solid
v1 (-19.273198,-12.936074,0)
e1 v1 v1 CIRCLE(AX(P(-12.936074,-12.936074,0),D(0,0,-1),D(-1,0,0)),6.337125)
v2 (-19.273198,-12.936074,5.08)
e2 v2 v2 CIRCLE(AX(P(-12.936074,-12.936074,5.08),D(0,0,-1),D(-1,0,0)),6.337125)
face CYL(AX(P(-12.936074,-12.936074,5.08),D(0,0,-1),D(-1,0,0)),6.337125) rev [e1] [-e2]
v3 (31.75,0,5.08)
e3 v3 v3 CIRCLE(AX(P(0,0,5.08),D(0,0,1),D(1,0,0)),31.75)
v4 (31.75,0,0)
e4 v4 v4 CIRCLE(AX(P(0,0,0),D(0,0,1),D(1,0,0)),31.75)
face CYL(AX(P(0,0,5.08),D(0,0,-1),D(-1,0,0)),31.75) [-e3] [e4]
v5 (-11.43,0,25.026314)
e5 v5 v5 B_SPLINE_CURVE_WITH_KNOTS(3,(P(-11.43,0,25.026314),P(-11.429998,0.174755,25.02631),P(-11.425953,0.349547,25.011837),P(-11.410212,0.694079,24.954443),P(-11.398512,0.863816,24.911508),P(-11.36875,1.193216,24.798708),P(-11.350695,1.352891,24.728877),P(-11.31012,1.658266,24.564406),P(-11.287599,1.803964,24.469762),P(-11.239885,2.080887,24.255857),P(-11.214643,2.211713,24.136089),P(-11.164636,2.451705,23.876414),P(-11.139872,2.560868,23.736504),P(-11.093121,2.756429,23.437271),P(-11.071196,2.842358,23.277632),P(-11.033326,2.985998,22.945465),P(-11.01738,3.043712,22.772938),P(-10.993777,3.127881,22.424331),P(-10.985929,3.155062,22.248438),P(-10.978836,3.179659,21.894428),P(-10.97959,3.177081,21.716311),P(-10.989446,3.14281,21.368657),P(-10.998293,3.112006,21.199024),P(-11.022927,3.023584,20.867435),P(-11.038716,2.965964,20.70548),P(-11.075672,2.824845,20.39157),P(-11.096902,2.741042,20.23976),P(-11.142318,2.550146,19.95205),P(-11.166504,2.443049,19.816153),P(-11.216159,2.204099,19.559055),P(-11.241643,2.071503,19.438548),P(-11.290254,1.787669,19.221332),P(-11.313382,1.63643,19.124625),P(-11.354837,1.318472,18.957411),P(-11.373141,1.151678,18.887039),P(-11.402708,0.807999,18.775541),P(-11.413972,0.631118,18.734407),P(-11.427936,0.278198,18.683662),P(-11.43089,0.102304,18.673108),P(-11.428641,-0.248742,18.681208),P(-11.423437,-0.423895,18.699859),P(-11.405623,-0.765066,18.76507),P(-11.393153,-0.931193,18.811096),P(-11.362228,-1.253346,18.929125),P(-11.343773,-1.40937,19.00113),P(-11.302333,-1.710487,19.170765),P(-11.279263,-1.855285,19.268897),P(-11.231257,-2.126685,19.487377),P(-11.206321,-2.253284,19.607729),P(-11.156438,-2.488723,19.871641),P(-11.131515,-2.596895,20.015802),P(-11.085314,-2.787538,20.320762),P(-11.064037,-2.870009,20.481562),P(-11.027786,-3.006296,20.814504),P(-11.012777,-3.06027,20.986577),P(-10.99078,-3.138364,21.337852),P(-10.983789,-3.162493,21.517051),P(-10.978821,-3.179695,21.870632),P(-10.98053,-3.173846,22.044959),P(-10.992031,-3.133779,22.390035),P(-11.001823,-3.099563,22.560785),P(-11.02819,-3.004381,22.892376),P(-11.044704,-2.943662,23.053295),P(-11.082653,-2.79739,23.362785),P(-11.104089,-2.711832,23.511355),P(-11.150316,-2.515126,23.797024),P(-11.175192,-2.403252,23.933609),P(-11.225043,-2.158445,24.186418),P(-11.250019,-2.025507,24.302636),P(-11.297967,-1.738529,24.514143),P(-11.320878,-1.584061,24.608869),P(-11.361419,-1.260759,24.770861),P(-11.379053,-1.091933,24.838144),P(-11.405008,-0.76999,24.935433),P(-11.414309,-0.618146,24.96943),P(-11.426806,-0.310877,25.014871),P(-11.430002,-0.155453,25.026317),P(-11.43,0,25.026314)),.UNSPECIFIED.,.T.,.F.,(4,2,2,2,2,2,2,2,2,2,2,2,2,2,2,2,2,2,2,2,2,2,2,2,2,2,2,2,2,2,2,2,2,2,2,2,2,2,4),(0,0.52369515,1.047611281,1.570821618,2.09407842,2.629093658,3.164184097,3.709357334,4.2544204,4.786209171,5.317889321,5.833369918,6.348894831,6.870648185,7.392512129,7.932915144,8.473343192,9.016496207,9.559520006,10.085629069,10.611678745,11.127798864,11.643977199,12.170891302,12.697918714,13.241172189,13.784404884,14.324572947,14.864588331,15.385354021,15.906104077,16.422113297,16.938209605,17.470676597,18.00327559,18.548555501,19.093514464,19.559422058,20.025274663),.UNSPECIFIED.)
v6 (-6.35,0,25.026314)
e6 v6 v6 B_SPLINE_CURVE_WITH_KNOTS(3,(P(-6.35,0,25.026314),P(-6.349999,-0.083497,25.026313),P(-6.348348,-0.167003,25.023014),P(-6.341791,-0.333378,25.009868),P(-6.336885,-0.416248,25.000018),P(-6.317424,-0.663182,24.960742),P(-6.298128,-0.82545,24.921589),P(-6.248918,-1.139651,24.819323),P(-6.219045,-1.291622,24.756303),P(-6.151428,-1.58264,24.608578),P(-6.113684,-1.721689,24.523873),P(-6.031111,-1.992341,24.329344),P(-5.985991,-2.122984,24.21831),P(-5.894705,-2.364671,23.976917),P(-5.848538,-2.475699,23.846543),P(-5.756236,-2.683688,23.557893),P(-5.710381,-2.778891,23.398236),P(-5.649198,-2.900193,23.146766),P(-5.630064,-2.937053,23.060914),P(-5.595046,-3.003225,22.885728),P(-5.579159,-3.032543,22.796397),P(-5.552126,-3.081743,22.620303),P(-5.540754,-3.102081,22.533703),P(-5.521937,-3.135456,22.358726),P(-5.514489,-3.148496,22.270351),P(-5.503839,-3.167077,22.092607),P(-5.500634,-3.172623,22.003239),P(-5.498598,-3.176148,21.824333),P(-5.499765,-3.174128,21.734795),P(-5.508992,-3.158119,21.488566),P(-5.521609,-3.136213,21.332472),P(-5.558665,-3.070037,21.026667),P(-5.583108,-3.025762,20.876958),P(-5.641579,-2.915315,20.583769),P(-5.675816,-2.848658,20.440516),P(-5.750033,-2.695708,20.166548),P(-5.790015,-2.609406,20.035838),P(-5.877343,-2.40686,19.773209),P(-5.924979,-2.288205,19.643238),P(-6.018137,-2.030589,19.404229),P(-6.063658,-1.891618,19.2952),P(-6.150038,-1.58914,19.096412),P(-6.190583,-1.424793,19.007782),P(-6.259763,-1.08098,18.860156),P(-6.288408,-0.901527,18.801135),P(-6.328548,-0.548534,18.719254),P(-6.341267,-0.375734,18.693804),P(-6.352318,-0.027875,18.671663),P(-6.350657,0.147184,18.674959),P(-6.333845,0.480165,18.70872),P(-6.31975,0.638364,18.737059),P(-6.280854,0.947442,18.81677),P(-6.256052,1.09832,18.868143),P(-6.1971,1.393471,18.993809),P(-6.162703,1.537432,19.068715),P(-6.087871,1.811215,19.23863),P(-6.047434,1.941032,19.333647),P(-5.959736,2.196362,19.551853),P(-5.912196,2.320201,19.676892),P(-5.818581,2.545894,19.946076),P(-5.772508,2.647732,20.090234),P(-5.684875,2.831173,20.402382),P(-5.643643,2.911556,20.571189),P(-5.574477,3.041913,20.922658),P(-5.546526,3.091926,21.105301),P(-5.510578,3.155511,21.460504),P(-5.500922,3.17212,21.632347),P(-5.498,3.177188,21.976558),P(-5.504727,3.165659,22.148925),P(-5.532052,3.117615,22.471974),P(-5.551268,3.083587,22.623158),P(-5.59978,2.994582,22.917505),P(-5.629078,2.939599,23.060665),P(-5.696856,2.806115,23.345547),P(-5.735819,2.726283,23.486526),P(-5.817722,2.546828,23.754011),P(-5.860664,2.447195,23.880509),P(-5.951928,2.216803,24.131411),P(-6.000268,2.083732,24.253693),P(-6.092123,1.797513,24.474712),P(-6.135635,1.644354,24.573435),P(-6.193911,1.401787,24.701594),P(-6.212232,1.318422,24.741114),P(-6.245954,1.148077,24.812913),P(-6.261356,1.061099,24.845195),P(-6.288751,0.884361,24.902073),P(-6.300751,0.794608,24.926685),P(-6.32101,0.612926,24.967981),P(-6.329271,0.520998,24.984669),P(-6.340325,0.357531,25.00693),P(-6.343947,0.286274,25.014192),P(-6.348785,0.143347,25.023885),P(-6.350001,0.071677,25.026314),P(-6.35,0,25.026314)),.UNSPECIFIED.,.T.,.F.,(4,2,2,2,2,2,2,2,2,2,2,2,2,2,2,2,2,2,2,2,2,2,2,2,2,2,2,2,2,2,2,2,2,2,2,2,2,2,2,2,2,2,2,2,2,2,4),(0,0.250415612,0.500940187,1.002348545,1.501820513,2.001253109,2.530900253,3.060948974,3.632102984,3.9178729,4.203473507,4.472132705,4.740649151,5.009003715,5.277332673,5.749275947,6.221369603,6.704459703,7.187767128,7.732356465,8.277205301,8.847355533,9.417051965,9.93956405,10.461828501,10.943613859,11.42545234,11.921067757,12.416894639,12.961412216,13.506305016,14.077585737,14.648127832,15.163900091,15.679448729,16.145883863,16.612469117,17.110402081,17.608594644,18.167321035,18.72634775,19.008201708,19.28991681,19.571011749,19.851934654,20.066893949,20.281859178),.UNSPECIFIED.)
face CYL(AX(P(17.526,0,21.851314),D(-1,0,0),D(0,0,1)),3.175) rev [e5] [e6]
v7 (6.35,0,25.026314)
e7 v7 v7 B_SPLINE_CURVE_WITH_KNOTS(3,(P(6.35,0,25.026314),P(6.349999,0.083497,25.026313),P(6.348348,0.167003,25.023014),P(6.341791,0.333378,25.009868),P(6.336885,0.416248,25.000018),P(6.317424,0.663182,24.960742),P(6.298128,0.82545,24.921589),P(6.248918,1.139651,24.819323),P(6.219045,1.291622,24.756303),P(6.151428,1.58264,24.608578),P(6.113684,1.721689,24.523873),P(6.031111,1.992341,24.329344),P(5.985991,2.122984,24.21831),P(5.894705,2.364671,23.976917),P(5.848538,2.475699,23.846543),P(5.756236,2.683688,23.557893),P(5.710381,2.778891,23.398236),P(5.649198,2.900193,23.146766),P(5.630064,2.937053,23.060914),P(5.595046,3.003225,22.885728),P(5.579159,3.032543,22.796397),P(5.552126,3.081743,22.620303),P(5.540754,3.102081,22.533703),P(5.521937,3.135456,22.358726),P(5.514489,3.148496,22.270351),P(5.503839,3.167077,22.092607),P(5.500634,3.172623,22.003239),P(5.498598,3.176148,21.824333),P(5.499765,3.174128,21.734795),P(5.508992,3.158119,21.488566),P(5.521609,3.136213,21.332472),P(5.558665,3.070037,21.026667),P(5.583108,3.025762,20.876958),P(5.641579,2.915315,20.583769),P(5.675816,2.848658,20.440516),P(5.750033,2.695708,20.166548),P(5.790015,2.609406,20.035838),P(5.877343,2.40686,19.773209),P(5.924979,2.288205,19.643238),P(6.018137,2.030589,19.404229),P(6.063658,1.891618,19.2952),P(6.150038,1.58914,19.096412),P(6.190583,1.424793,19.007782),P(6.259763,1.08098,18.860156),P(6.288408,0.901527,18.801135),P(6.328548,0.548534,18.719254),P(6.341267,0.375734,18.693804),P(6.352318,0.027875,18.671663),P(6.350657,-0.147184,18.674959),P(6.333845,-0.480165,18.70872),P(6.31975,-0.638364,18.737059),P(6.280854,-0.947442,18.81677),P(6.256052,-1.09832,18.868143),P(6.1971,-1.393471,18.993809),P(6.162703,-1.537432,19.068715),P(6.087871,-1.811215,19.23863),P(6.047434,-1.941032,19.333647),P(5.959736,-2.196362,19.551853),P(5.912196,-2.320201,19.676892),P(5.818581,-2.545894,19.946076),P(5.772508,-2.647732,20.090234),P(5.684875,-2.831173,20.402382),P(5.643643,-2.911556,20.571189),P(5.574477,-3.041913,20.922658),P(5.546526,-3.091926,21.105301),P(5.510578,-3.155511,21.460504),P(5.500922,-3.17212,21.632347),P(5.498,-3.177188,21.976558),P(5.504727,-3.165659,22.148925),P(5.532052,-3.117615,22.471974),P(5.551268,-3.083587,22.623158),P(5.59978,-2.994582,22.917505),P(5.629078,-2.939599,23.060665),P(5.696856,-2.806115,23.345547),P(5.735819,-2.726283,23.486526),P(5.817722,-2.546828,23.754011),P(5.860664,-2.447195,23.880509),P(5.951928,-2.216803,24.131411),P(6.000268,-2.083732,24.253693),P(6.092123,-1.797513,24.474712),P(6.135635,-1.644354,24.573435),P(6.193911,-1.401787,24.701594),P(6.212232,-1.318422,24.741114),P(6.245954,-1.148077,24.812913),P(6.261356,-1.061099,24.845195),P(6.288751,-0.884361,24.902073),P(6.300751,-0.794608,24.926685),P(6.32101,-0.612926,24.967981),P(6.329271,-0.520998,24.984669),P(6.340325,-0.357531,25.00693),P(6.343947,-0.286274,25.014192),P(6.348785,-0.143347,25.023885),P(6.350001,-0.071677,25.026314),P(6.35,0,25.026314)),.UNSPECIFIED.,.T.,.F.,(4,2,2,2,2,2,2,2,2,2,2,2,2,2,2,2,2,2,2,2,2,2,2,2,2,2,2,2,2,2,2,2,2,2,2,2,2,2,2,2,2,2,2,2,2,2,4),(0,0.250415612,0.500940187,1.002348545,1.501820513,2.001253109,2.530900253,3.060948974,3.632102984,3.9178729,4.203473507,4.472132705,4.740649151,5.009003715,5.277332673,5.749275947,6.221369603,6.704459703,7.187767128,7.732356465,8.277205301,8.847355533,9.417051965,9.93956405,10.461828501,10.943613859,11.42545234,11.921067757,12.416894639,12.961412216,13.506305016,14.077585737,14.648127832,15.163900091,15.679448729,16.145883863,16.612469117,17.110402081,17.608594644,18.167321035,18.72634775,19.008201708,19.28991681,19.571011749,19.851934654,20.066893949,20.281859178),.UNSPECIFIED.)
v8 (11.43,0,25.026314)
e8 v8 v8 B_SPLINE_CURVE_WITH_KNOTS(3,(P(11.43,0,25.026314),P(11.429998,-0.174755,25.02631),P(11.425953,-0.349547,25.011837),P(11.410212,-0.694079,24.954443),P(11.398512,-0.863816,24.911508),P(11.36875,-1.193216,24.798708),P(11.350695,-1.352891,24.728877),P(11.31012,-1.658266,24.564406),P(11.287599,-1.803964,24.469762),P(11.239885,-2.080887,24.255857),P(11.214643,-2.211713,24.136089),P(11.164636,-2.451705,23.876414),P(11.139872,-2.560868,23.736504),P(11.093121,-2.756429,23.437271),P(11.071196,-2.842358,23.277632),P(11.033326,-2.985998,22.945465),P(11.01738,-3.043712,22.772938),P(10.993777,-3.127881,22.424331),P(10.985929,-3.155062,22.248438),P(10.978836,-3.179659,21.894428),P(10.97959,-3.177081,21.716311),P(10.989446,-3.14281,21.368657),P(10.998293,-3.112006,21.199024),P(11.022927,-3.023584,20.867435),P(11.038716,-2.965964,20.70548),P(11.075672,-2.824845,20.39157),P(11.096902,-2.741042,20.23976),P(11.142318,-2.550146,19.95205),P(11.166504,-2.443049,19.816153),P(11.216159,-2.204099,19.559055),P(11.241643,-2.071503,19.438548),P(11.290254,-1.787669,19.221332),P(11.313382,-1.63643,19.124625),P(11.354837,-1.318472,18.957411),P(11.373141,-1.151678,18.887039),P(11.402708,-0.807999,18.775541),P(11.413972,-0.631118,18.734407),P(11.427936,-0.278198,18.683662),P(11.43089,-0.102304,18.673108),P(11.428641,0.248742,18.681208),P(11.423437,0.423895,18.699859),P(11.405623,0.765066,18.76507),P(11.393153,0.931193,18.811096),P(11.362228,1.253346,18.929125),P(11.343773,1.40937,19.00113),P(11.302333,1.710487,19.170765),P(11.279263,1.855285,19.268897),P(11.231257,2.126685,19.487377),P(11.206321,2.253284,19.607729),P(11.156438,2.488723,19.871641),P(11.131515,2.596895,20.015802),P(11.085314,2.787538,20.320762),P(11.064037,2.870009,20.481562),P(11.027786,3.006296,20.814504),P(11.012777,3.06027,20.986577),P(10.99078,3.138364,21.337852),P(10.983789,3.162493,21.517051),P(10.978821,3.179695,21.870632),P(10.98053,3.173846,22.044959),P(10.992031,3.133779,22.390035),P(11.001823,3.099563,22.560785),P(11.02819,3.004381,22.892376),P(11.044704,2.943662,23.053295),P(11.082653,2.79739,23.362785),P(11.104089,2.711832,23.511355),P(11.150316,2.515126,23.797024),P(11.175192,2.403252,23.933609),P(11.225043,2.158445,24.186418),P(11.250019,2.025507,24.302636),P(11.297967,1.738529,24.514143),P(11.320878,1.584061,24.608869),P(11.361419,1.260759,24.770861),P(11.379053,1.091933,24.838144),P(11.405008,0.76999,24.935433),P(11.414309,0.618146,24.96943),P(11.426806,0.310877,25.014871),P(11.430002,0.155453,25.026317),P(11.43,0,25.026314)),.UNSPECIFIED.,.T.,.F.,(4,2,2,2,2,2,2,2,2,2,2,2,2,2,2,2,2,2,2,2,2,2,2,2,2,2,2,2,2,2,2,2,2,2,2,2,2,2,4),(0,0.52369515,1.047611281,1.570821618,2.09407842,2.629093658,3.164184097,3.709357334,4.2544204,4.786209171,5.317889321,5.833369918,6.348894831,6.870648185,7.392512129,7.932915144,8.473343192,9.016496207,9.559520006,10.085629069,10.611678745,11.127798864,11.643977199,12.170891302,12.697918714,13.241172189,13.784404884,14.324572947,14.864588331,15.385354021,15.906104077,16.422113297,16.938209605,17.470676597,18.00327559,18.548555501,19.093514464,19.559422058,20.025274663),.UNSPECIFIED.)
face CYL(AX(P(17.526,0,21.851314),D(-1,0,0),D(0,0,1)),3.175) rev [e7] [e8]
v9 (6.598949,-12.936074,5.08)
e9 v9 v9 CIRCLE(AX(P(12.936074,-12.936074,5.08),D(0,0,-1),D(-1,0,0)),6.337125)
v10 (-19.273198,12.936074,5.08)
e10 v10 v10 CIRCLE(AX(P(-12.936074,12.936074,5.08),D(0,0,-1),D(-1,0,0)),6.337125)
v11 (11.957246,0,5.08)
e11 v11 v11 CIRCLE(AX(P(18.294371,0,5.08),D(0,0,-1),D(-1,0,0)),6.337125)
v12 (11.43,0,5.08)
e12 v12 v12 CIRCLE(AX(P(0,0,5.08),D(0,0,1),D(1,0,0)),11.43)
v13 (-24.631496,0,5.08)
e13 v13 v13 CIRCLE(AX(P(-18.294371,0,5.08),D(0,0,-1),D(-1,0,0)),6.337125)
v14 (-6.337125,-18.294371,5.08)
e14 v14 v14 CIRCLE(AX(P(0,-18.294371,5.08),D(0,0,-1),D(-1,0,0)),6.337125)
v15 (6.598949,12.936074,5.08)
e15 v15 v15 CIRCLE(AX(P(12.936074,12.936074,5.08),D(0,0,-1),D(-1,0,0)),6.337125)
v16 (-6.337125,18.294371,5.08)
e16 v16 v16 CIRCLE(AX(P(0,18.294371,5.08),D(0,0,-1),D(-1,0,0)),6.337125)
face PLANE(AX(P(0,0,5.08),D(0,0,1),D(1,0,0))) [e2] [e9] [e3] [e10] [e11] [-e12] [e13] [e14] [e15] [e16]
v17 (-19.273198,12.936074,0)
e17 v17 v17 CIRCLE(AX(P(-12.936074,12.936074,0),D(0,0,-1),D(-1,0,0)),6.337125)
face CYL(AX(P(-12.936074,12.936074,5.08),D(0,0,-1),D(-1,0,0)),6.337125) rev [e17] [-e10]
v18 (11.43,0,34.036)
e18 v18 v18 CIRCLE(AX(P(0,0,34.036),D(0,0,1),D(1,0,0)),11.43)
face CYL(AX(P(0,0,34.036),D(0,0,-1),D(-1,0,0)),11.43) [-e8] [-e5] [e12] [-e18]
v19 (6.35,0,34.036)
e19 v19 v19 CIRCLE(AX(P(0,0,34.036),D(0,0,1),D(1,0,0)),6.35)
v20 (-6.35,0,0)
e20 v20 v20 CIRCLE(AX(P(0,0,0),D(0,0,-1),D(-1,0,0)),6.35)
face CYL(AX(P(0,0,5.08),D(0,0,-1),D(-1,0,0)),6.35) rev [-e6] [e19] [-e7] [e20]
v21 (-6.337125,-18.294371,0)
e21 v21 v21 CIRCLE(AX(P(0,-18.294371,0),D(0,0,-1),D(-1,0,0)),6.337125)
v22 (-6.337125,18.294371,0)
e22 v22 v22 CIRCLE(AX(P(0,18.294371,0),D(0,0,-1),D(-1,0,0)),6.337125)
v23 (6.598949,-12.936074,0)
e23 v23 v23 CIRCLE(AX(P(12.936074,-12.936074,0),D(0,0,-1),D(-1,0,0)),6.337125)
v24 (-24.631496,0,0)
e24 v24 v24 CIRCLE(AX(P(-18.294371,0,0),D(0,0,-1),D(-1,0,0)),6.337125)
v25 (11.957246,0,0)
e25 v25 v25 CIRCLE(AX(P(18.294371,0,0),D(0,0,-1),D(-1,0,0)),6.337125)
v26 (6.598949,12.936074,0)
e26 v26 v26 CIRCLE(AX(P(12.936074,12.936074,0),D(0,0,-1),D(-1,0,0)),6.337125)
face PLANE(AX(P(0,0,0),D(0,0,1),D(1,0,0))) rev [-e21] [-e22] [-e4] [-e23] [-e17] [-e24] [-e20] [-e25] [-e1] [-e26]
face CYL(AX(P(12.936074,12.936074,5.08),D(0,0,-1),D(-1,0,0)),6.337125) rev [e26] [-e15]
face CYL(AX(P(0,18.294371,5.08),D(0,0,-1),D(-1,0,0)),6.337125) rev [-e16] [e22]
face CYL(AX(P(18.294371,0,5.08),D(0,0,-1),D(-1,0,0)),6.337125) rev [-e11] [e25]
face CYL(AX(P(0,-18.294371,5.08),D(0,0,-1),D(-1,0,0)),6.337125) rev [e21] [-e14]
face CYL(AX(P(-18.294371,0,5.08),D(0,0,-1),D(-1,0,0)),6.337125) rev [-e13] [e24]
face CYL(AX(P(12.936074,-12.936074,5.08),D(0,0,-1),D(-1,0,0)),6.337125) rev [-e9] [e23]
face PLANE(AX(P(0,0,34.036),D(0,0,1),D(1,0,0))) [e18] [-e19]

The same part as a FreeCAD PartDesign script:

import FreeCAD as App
import Part
import Sketcher
Q = App.Units.Quantity

doc = App.newDocument("Part")
body = doc.addObject("PartDesign::Body", "Body")

sketch1 = doc.addObject("Sketcher::SketchObject", "Sketch")
body.addObject(sketch1)
sketch1.AttachmentSupport = (doc.XY_Plane, [""])
sketch1.MapMode = "FlatFace"
sketch1.addGeometry(Part.Circle(App.Vector(0, 0, 0), App.Vector(0, 0, 1), 32), False)
sketch1.addConstraint(Sketcher.Constraint("Coincident", 0, 3, -1, 1))
sketch1.addConstraint(Sketcher.Constraint("Diameter", 0, Q("2.5 in")))
pad1 = doc.addObject("PartDesign::Pad", "Pad")
body.addObject(pad1)
pad1.Profile = sketch1
pad1.Length = Q("0.2 in")

sketch2 = doc.addObject("Sketcher::SketchObject", "Sketch001")
body.addObject(sketch2)
sketch2.AttachmentSupport = (doc.XY_Plane, [""])
sketch2.MapMode = "FlatFace"
sketch2.addGeometry(Part.Circle(App.Vector(0, 0, 0), App.Vector(0, 0, 1), 6), False)
sketch2.addConstraint(Sketcher.Constraint("Coincident", 0, 3, -1, 1))
sketch2.addConstraint(Sketcher.Constraint("Diameter", 0, Q("0.5 in")))
pocket1 = doc.addObject("PartDesign::Pocket", "Pocket")
body.addObject(pocket1)
pocket1.Profile = sketch2
pocket1.Length = Q("0.2 in")
pocket1.Reversed = True

sketch3 = doc.addObject("Sketcher::SketchObject", "Sketch002")
body.addObject(sketch3)
sketch3.AttachmentSupport = (doc.XY_Plane, [""])
sketch3.MapMode = "FlatFace"
sketch3.AttachmentOffset = App.Placement(App.Vector(0, 0, 0.2 * 25.4), App.Rotation())
sketch3.addGeometry(Part.Circle(App.Vector(0, 0, 0), App.Vector(0, 0, 1), 11), False)
sketch3.addConstraint(Sketcher.Constraint("Coincident", 0, 3, -1, 1))
sketch3.addConstraint(Sketcher.Constraint("Diameter", 0, Q("0.9 in")))
pad2 = doc.addObject("PartDesign::Pad", "Pad001")
body.addObject(pad2)
pad2.Profile = sketch3
pad2.Length = Q("1.14 in")

sketch4 = doc.addObject("Sketcher::SketchObject", "Sketch003")
body.addObject(sketch4)
sketch4.AttachmentSupport = (doc.XY_Plane, [""])
sketch4.MapMode = "FlatFace"
sketch4.AttachmentOffset = App.Placement(App.Vector(0, 0, 0.19 * 25.4), App.Rotation())
sketch4.addGeometry(Part.Circle(App.Vector(0, 0, 0), App.Vector(0, 0, 1), 6), False)
sketch4.addConstraint(Sketcher.Constraint("Coincident", 0, 3, -1, 1))
sketch4.addConstraint(Sketcher.Constraint("Diameter", 0, Q("0.5 in")))
pocket2 = doc.addObject("PartDesign::Pocket", "Pocket001")
body.addObject(pocket2)
pocket2.Profile = sketch4
pocket2.Length = Q("1.15 in")
pocket2.Reversed = True

sketch5 = doc.addObject("Sketcher::SketchObject", "Sketch004")
body.addObject(sketch5)
sketch5.AttachmentSupport = (doc.XY_Plane, [""])
sketch5.MapMode = "FlatFace"
sketch5.addGeometry(Part.Circle(App.Vector(0, 18, 0), App.Vector(0, 0, 1), 6), False)
sketch5.addGeometry(Part.Circle(App.Vector(-13, 13, 0), App.Vector(0, 0, 1), 6), False)
sketch5.addGeometry(Part.Circle(App.Vector(-18, 0, 0), App.Vector(0, 0, 1), 6), False)
sketch5.addGeometry(Part.Circle(App.Vector(-13, -13, 0), App.Vector(0, 0, 1), 6), False)
sketch5.addGeometry(Part.Circle(App.Vector(0, -18, 0), App.Vector(0, 0, 1), 6), False)
sketch5.addGeometry(Part.Circle(App.Vector(13, -13, 0), App.Vector(0, 0, 1), 6), False)
sketch5.addGeometry(Part.Circle(App.Vector(18, 0, 0), App.Vector(0, 0, 1), 6), False)
sketch5.addGeometry(Part.Circle(App.Vector(13, 13, 0), App.Vector(0, 0, 1), 6), False)
sketch5.addConstraint(Sketcher.Constraint("Equal", 0, 1))
sketch5.addConstraint(Sketcher.Constraint("Equal", 1, 2))
sketch5.addConstraint(Sketcher.Constraint("Equal", 2, 3))
sketch5.addConstraint(Sketcher.Constraint("Equal", 3, 4))
sketch5.addConstraint(Sketcher.Constraint("Equal", 4, 5))
sketch5.addConstraint(Sketcher.Constraint("Equal", 5, 6))
sketch5.addConstraint(Sketcher.Constraint("Equal", 6, 7))
sketch5.addConstraint(Sketcher.Constraint("Symmetric", 0, 3, 4, 3, -1, 1))
sketch5.addConstraint(Sketcher.Constraint("Symmetric", 1, 3, 5, 3, -1, 1))
sketch5.addConstraint(Sketcher.Constraint("Symmetric", 2, 3, 6, 3, -1, 1))
sketch5.addConstraint(Sketcher.Constraint("Symmetric", 3, 3, 7, 3, -1, 1))
sketch5.addConstraint(Sketcher.Constraint("Symmetric", 3, 3, 5, 3, -2))
sketch5.addConstraint(Sketcher.Constraint("PointOnObject", 0, 3, -2))
sketch5.addConstraint(Sketcher.Constraint("PointOnObject", 2, 3, -1))
sketch5.addConstraint(Sketcher.Constraint("Diameter", 0, 12.67425))
sketch5.addConstraint(Sketcher.Constraint("DistanceY", -1, 1, 0, 3, 18.294371))
sketch5.addConstraint(Sketcher.Constraint("DistanceX", 2, 3, -1, 1, 18.294371))
sketch5.addConstraint(Sketcher.Constraint("DistanceX", 1, 3, -1, 1, 12.936074))
sketch5.addConstraint(Sketcher.Constraint("DistanceY", -1, 1, 1, 3, 12.936074))
pocket3 = doc.addObject("PartDesign::Pocket", "Pocket002")
body.addObject(pocket3)
pocket3.Profile = sketch5
pocket3.Length = Q("0.2 in")
pocket3.Reversed = True

sketch6 = doc.addObject("Sketcher::SketchObject", "Sketch005")
body.addObject(sketch6)
sketch6.AttachmentSupport = (doc.YZ_Plane, [""])
sketch6.MapMode = "FlatFace"
sketch6.addGeometry(Part.Circle(App.Vector(0, 21.9, 0), App.Vector(0, 0, 1), 3.2), False)
sketch6.addConstraint(Sketcher.Constraint("PointOnObject", 0, 3, -2))
sketch6.addConstraint(Sketcher.Constraint("Diameter", 0, Q("0.25 in")))
sketch6.addConstraint(Sketcher.Constraint("DistanceY", -1, 1, 0, 3, 21.851314))
pocket4 = doc.addObject("PartDesign::Pocket", "Pocket003")
body.addObject(pocket4)
pocket4.Profile = sketch6
pocket4.Type = "ThroughAll"
pocket4.Midplane = True

doc.recompute()
